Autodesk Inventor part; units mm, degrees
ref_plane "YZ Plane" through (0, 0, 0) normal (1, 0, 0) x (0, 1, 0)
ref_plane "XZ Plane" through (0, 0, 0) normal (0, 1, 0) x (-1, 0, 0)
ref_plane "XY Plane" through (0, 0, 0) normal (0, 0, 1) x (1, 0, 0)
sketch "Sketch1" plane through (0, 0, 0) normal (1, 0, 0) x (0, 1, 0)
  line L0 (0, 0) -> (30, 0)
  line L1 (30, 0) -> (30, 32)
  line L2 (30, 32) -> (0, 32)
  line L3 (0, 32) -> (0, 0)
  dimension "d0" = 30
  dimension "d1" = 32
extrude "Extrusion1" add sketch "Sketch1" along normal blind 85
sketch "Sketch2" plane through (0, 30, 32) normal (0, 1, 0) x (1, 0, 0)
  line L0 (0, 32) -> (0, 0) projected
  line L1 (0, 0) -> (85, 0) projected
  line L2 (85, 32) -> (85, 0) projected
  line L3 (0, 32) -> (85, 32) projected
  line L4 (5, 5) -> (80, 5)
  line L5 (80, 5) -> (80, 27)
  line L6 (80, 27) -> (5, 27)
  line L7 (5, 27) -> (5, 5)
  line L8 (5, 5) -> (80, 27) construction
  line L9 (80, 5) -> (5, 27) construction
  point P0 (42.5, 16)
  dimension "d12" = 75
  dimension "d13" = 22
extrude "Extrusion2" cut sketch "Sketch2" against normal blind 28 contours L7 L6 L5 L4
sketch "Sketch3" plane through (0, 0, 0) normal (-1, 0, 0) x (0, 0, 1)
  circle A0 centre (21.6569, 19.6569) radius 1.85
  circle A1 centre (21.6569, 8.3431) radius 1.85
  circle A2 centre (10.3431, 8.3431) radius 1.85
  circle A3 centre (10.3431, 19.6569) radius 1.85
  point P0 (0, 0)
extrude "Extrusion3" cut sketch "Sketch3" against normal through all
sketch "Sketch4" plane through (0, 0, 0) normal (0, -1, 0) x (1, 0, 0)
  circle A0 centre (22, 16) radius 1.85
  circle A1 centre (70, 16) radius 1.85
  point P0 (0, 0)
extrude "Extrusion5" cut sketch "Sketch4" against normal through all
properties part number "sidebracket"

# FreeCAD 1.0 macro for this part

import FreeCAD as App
import Part
import Sketcher
from FreeCAD import Vector
Q = App.Units.Quantity


def add_polygon(sketch, points):
    """Adds a closed chain of lines whose ends are joined by coincident constraints."""
    first, n = sketch.GeometryCount, len(points)
    for a, b in zip(points, points[1:] + points[:1]):
        sketch.addGeometry(Part.LineSegment(App.Vector(*a, 0), App.Vector(*b, 0)), False)
    for i in range(n):
        sketch.addConstraint(Sketcher.Constraint("Coincident", first + i, 2, first + (i + 1) % n, 1))

doc = App.newDocument("Part")
body = doc.addObject("PartDesign::Body", "Body")

# Sketch on YZ plane
sketch1 = body.newObject("Sketcher::SketchObject", "Sketch")
sketch1.AttachmentSupport = (doc.getObject("YZ_Plane"), [""])
sketch1.MapMode = "FlatFace"
add_polygon(sketch1, [(0, 32), (0, 0), (30, 0), (30, 32)])  # lines 0-3
sketch1.addConstraint([
    Sketcher.Constraint("Vertical", 0),
    Sketcher.Constraint("Horizontal", 1),
    Sketcher.Constraint("Vertical", 2),
    Sketcher.Constraint("Horizontal", 3),
    Sketcher.Constraint("Coincident", 0, 2, -1, 1),
    Sketcher.Constraint("DistanceX", 1, 1, 1, 2, Q("30 mm")),
    Sketcher.Constraint("DistanceY", 0, 2, 0, 1, Q("32 mm")),
])
pad1 = body.newObject("PartDesign::Pad", "Pad")
pad1.Profile = sketch1
pad1.Length = 85

# Sketch on XZ plane
sketch2 = body.newObject("Sketcher::SketchObject", "Sketch001")
sketch2.AttachmentSupport = (doc.getObject("XZ_Plane"), [""])
sketch2.MapMode = "FlatFace"
sketch2.AttachmentOffset = App.Placement(Vector(0, 0, -30), App.Rotation())
add_polygon(sketch2, [(5, 5), (5, 27), (80, 27), (80, 5)])  # lines 0-3
sketch2.addConstraint([
    Sketcher.Constraint("Vertical", 0),
    Sketcher.Constraint("Horizontal", 1),
    Sketcher.Constraint("Vertical", 2),
    Sketcher.Constraint("Horizontal", 3),
    Sketcher.Constraint("DistanceX", 1, 1, 1, 2, Q("75 mm")),
    Sketcher.Constraint("DistanceY", 0, 1, 0, 2, Q("22 mm")),
    Sketcher.Constraint("DistanceX", -1, 1, 0, 2, Q("5 mm")),
    Sketcher.Constraint("DistanceY", -1, 1, 0, 2, Q("27 mm")),
])
pocket1 = body.newObject("PartDesign::Pocket", "Pocket")
pocket1.Profile = sketch2
pocket1.Length = 28
pocket1.Reversed = True

# Sketch on YZ plane
sketch3 = body.newObject("Sketcher::SketchObject", "Sketch002")
sketch3.AttachmentSupport = (doc.getObject("YZ_Plane"), [""])
sketch3.MapMode = "FlatFace"
sketch3.addGeometry([
    Part.Circle(Vector(19.7, 21.7, 0), Vector(0, 0, 1), 1.9),
    Part.Circle(Vector(8.3, 21.7, 0), Vector(0, 0, 1), 1.9),
    Part.Circle(Vector(8.3, 10.3, 0), Vector(0, 0, 1), 1.9),
    Part.Circle(Vector(19.7, 10.3, 0), Vector(0, 0, 1), 1.9),
], False)
sketch3.addConstraint([
    Sketcher.Constraint("Equal", 0, 1),
    Sketcher.Constraint("Equal", 1, 2),
    Sketcher.Constraint("Equal", 2, 3),
    Sketcher.Constraint("Horizontal", 0, 3, 1, 3),
    Sketcher.Constraint("Horizontal", 2, 3, 3, 3),
    Sketcher.Constraint("Vertical", 1, 3, 2, 3),
    Sketcher.Constraint("Vertical", 0, 3, 3, 3),
    Sketcher.Constraint("Diameter", 0, Q("3.7 mm")),
    Sketcher.Constraint("DistanceX", -1, 1, 0, 3, Q("19.657 mm")),
    Sketcher.Constraint("DistanceY", -1, 1, 0, 3, Q("21.657 mm")),
    Sketcher.Constraint("DistanceX", -1, 1, 1, 3, Q("8.343 mm")),
    Sketcher.Constraint("DistanceY", -1, 1, 2, 3, Q("10.343 mm")),
])
pocket2 = body.newObject("PartDesign::Pocket", "Pocket001")
pocket2.Profile = sketch3
pocket2.Type = "ThroughAll"
pocket2.Reversed = True

# Sketch on XZ plane
sketch4 = body.newObject("Sketcher::SketchObject", "Sketch003")
sketch4.AttachmentSupport = (doc.getObject("XZ_Plane"), [""])
sketch4.MapMode = "FlatFace"
sketch4.addGeometry([
    Part.Circle(Vector(22, 16, 0), Vector(0, 0, 1), 1.9),
    Part.Circle(Vector(70, 16, 0), Vector(0, 0, 1), 1.9),
], False)
sketch4.addConstraint([
    Sketcher.Constraint("Equal", 0, 1),
    Sketcher.Constraint("Horizontal", 0, 3, 1, 3),
    Sketcher.Constraint("Diameter", 0, Q("3.7 mm")),
    Sketcher.Constraint("DistanceX", -1, 1, 0, 3, Q("22 mm")),
    Sketcher.Constraint("DistanceY", -1, 1, 0, 3, Q("16 mm")),
    Sketcher.Constraint("DistanceX", -1, 1, 1, 3, Q("70 mm")),
])
pocket3 = body.newObject("PartDesign::Pocket", "Pocket002")
pocket3.Profile = sketch4
pocket3.Type = "ThroughAll"

doc.recompute()
